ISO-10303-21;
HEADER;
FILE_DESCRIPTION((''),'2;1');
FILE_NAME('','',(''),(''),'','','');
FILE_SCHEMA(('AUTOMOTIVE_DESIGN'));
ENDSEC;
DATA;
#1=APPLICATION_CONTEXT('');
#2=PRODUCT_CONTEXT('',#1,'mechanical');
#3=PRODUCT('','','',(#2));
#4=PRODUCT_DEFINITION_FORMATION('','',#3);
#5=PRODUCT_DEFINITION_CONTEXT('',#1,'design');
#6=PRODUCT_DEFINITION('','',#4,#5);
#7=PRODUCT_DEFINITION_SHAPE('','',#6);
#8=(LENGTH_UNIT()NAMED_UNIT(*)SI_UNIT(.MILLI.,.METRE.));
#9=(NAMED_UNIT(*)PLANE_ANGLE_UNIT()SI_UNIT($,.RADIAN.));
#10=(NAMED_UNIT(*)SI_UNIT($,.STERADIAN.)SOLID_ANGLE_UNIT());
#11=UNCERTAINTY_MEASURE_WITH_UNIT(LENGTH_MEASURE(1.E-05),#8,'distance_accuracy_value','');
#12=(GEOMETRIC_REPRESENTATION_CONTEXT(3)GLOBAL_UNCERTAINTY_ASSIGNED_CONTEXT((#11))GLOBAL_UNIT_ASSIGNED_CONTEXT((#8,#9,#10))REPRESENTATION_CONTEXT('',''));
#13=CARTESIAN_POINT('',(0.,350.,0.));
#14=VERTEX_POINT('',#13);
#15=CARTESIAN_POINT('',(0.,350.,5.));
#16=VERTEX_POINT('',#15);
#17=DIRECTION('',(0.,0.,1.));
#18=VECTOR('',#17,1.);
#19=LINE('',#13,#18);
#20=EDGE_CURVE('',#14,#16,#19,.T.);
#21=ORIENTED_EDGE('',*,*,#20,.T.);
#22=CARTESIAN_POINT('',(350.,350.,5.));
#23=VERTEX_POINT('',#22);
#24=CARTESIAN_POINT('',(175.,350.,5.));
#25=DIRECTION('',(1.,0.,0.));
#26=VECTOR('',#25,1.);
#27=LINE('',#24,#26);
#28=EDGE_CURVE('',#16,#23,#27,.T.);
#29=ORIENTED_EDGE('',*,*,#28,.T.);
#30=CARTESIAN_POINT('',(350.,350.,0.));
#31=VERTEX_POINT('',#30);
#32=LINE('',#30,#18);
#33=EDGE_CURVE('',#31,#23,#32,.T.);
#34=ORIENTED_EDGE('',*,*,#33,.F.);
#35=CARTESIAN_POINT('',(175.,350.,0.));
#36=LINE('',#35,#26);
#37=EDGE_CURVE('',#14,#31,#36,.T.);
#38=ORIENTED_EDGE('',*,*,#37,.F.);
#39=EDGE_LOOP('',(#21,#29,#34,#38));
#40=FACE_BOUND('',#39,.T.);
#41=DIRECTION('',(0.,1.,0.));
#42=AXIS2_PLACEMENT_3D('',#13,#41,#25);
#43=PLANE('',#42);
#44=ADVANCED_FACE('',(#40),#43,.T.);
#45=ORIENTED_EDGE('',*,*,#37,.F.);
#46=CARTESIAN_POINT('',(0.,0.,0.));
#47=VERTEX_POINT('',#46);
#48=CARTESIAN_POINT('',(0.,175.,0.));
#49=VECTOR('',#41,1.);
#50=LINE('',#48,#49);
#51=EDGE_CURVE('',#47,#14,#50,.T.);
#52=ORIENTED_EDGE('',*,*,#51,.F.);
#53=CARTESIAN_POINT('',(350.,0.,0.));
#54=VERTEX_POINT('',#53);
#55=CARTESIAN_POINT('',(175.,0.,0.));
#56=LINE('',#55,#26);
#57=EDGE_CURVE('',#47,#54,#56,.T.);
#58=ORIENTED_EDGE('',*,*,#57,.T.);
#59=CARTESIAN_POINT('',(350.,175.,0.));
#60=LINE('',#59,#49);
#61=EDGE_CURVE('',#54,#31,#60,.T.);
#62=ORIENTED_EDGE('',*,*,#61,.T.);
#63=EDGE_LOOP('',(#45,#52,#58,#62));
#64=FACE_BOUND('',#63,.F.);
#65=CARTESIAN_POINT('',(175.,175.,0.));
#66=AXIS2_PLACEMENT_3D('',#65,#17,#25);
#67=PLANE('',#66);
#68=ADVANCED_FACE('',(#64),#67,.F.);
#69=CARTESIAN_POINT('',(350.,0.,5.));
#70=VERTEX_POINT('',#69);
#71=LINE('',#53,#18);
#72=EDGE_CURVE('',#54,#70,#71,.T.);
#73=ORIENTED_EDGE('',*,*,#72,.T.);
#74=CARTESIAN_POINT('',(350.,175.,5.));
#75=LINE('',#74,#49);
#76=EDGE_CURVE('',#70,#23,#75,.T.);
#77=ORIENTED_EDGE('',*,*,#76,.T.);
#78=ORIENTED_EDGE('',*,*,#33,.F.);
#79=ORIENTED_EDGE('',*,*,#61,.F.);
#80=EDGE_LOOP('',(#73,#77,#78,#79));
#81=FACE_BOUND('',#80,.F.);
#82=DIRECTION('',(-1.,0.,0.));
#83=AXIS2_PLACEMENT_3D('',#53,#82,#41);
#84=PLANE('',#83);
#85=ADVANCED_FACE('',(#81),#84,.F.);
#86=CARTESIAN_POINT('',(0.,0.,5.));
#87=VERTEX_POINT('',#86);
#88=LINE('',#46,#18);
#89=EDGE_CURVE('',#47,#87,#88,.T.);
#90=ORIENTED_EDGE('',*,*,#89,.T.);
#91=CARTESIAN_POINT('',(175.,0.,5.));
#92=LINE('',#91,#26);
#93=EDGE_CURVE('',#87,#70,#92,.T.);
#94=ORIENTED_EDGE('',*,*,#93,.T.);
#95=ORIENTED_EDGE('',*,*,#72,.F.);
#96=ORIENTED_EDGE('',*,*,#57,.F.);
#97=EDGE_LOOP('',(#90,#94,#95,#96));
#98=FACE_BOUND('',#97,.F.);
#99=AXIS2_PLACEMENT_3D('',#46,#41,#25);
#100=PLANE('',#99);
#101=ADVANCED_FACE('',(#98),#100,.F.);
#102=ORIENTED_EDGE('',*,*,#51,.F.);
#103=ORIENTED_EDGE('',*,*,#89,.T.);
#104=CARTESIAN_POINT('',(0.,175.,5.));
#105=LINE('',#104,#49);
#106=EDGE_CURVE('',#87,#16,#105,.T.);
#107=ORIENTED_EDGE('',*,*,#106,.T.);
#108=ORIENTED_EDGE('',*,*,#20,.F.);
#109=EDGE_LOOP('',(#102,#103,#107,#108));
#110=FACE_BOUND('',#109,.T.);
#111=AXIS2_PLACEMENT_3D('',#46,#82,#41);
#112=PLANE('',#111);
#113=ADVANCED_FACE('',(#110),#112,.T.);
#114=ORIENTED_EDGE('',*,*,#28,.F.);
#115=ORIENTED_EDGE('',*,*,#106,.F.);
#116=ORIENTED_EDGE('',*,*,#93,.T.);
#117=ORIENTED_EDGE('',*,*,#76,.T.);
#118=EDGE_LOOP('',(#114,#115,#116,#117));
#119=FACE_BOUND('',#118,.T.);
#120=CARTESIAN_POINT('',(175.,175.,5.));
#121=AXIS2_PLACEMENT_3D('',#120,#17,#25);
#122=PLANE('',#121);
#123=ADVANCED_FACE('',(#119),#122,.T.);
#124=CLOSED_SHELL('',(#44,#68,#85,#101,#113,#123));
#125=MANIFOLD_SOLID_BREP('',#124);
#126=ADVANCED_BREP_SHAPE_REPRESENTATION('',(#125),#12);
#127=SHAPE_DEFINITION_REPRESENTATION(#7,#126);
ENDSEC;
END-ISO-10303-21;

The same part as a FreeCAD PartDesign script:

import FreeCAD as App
import Part
import Sketcher

doc = App.newDocument("Part")
body = doc.addObject("PartDesign::Body", "Body")

sketch1 = doc.addObject("Sketcher::SketchObject", "Sketch")
body.addObject(sketch1)
sketch1.AttachmentSupport = (doc.XY_Plane, [""])
sketch1.MapMode = "FlatFace"
sketch1.addGeometry([
    Part.LineSegment(App.Vector(0, 350, 0), App.Vector(0, 0, 0)),
    Part.LineSegment(App.Vector(0, 0, 0), App.Vector(350, 0, 0)),
    Part.LineSegment(App.Vector(350, 0, 0), App.Vector(350, 350, 0)),
    Part.LineSegment(App.Vector(350, 350, 0), App.Vector(0, 350, 0)),
], False)
sketch1.addConstraint([
    Sketcher.Constraint("Coincident", 0, 2, 1, 1),
    Sketcher.Constraint("Coincident", 1, 2, 2, 1),
    Sketcher.Constraint("Coincident", 2, 2, 3, 1),
    Sketcher.Constraint("Coincident", 3, 2, 0, 1),
    Sketcher.Constraint("Vertical", 0),
    Sketcher.Constraint("Horizontal", 1),
    Sketcher.Constraint("Vertical", 2),
    Sketcher.Constraint("Horizontal", 3),
    Sketcher.Constraint("Coincident", 0, 2, -1, 1),
    Sketcher.Constraint("Equal", 3, 0),
    Sketcher.Constraint("DistanceX", 1, 1, 1, 2, 350.0),
])
pad1 = doc.addObject("PartDesign::Pad", "Pad")
body.addObject(pad1)
pad1.Profile = sketch1
pad1.Length = 5

doc.recompute()
